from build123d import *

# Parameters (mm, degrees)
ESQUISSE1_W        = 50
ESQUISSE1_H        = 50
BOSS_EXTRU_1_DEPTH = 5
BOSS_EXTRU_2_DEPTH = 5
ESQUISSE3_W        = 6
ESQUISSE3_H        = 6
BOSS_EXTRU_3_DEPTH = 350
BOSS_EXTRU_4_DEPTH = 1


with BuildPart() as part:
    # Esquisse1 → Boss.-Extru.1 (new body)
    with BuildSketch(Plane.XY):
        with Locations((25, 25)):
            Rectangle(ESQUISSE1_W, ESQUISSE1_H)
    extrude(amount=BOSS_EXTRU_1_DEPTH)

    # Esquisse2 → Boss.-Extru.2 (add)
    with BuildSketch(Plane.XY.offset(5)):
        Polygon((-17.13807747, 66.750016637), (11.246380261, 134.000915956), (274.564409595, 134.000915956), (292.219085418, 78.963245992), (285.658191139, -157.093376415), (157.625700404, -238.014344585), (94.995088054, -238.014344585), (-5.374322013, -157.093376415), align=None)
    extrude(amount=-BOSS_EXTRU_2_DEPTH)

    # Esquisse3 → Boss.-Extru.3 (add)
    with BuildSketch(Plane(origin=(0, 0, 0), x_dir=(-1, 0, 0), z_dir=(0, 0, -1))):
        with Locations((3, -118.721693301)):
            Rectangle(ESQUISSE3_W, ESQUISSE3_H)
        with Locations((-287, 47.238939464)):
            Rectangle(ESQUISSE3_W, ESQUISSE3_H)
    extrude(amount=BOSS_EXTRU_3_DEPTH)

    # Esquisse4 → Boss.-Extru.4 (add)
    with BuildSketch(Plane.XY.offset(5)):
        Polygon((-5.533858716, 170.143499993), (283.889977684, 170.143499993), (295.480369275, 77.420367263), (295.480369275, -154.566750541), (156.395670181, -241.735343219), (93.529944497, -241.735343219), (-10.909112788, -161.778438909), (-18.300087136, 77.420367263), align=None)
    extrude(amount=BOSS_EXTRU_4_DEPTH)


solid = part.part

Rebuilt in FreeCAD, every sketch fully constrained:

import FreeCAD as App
import Part
import Sketcher
from FreeCAD import Vector
Q = App.Units.Quantity


def add_polygon(sketch, points):
    """Adds a closed chain of lines whose ends are joined by coincident constraints."""
    first, n = sketch.GeometryCount, len(points)
    for a, b in zip(points, points[1:] + points[:1]):
        sketch.addGeometry(Part.LineSegment(App.Vector(*a, 0), App.Vector(*b, 0)), False)
    for i in range(n):
        sketch.addConstraint(Sketcher.Constraint("Coincident", first + i, 2, first + (i + 1) % n, 1))

doc = App.newDocument("Part")
body = doc.addObject("PartDesign::Body", "Body")

# Sketch on XY plane
sketch1 = doc.addObject("Sketcher::SketchObject", "Sketch")
body.addObject(sketch1)
sketch1.AttachmentSupport = (doc.XY_Plane, [""])
sketch1.MapMode = "FlatFace"
add_polygon(sketch1, [(0, 50), (0, 0), (50, 0), (50, 50)])  # lines 0-3
sketch1.addConstraint([
    Sketcher.Constraint("Vertical", 0),
    Sketcher.Constraint("Horizontal", 1),
    Sketcher.Constraint("Vertical", 2),
    Sketcher.Constraint("Horizontal", 3),
    Sketcher.Constraint("Coincident", 0, 2, -1, 1),
    Sketcher.Constraint("Equal", 3, 0),
    Sketcher.Constraint("DistanceX", 1, 1, 1, 2, Q("50 mm")),
])
pad1 = doc.addObject("PartDesign::Pad", "Pad")
body.addObject(pad1)
pad1.Profile = sketch1
pad1.Length = 5

# Sketch on XY plane
sketch2 = doc.addObject("Sketcher::SketchObject", "Sketch001")
body.addObject(sketch2)
sketch2.AttachmentSupport = (doc.XY_Plane, [""])
sketch2.MapMode = "FlatFace"
sketch2.AttachmentOffset = App.Placement(Vector(0, 0, 5), App.Rotation())
add_polygon(sketch2, [(11.24638, 134.000916), (-17.138077, 66.750017), (-5.374322, -157.093376), (94.995088, -238.014345), (157.6257, -238.014345), (285.658191, -157.093376), (292.219085, 78.963246), (274.56441, 134.000916)])  # lines 0-7
sketch2.addConstraint([
    Sketcher.Constraint("Horizontal", 3),
    Sketcher.Constraint("Horizontal", 7),
    Sketcher.Constraint("Horizontal", 1, 2, 4, 2),
    Sketcher.Constraint("DistanceX", 7, 2, 7, 1, Q("263.318029 mm")),
    Sketcher.Constraint("DistanceX", -1, 1, 3, 2, Q("157.6257 mm")),
    Sketcher.Constraint("DistanceY", 0, 2, 6, 2, Q("67.250899 mm")),
    Sketcher.Constraint("Distance", 4, Q("151.461288 mm")),
    Sketcher.Constraint("Distance", 5, Q("236.147781 mm")),
    Sketcher.Constraint("DistanceX", 3, 1, 3, 2, Q("62.630612 mm")),
    Sketcher.Constraint("DistanceX", -1, 1, 4, 2, Q("285.658191 mm")),
    Sketcher.Constraint("DistanceX", -1, 1, 6, 2, Q("274.56441 mm")),
    Sketcher.Constraint("DistanceX", 1, 2, 2, 2, Q("100.36941 mm")),
    Sketcher.Constraint("DistanceY", 2, 2, 0, 2, Q("304.764361 mm")),
    Sketcher.Constraint("DistanceX", 0, 2, 4, 2, Q("302.796269 mm")),
    Sketcher.Constraint("DistanceY", 0, 2, 5, 2, Q("12.213229 mm")),
    Sketcher.Constraint("DistanceY", -1, 1, 0, 2, Q("66.750017 mm")),
])
pad2 = doc.addObject("PartDesign::Pad", "Pad001")
body.addObject(pad2)
pad2.Profile = sketch2
pad2.Length = 5
pad2.Reversed = True

# Sketch on XY plane
sketch3 = doc.addObject("Sketcher::SketchObject", "Sketch002")
body.addObject(sketch3)
sketch3.AttachmentSupport = (doc.XY_Plane, [""])
sketch3.MapMode = "FlatFace"
add_polygon(sketch3, [(0, -115.721693), (0, -121.721693), (-6, -121.721693), (-6, -115.721693)])  # lines 0-3
add_polygon(sketch3, [(290, 50.238939), (290, 44.238939), (284, 44.238939), (284, 50.238939)])  # lines 4-7
sketch3.addConstraint([
    Sketcher.Constraint("Vertical", 0),
    Sketcher.Constraint("Horizontal", 1),
    Sketcher.Constraint("Vertical", 2),
    Sketcher.Constraint("Horizontal", 3),
    Sketcher.Constraint("Vertical", 4),
    Sketcher.Constraint("Horizontal", 5),
    Sketcher.Constraint("Vertical", 6),
    Sketcher.Constraint("Horizontal", 7),
    Sketcher.Constraint("PointOnObject", 0, 2, -2),
    Sketcher.Constraint("Equal", 3, 5),
    Sketcher.Constraint("Equal", 7, 0),
    Sketcher.Constraint("Equal", 2, 4),
    Sketcher.Constraint("DistanceX", 1, 2, 1, 1, Q("6 mm")),
    Sketcher.Constraint("DistanceX", -1, 1, 4, 2, Q("290 mm")),
    Sketcher.Constraint("DistanceY", -1, 1, 4, 2, Q("44.238939 mm")),
    Sketcher.Constraint("DistanceY", 0, 2, -1, 1, Q("121.721693 mm")),
])
pad3 = doc.addObject("PartDesign::Pad", "Pad002")
body.addObject(pad3)
pad3.Profile = sketch3
pad3.Length = 350
pad3.Reversed = True

# Sketch on XY plane
sketch4 = doc.addObject("Sketcher::SketchObject", "Sketch003")
body.addObject(sketch4)
sketch4.AttachmentSupport = (doc.XY_Plane, [""])
sketch4.MapMode = "FlatFace"
sketch4.AttachmentOffset = App.Placement(Vector(0, 0, 5), App.Rotation())
add_polygon(sketch4, [(283.889978, 170.1435), (-5.533859, 170.1435), (-18.300087, 77.420367), (-10.909113, -161.778439), (93.529944, -241.735343), (156.39567, -241.735343), (295.480369, -154.566751), (295.480369, 77.420367)])  # lines 0-7
sketch4.addConstraint([
    Sketcher.Constraint("Horizontal", 0),
    Sketcher.Constraint("Horizontal", 4),
    Sketcher.Constraint("Vertical", 6),
    Sketcher.Constraint("Horizontal", 1, 2, 6, 2),
    Sketcher.Constraint("DistanceY", -1, 1, 0, 2, Q("170.1435 mm")),
    Sketcher.Constraint("DistanceX", 4, 2, 5, 2, Q("139.084699 mm")),
    Sketcher.Constraint("Distance", 1, Q("93.597841 mm")),
    Sketcher.Constraint("DistanceX", 0, 2, 0, 1, Q("289.423836 mm")),
    Sketcher.Constraint("DistanceX", 4, 1, 4, 2, Q("62.865726 mm")),
    Sketcher.Constraint("DistanceY", 6, 1, 6, 2, Q("231.987118 mm")),
    Sketcher.Constraint("DistanceX", 0, 2, -1, 1, Q("5.533859 mm")),
    Sketcher.Constraint("DistanceY", 2, 2, -1, 1, Q("161.778439 mm")),
    Sketcher.Constraint("DistanceX", -1, 1, 4, 2, Q("156.39567 mm")),
    Sketcher.Constraint("DistanceY", 5, 2, -1, 1, Q("154.566751 mm")),
    Sketcher.Constraint("DistanceY", 3, 2, 1, 2, Q("319.15571 mm")),
    Sketcher.Constraint("Distance", 2, Q("239.312965 mm")),
])
pad4 = doc.addObject("PartDesign::Pad", "Pad003")
body.addObject(pad4)
pad4.Profile = sketch4
pad4.Length = 1

doc.recompute()
